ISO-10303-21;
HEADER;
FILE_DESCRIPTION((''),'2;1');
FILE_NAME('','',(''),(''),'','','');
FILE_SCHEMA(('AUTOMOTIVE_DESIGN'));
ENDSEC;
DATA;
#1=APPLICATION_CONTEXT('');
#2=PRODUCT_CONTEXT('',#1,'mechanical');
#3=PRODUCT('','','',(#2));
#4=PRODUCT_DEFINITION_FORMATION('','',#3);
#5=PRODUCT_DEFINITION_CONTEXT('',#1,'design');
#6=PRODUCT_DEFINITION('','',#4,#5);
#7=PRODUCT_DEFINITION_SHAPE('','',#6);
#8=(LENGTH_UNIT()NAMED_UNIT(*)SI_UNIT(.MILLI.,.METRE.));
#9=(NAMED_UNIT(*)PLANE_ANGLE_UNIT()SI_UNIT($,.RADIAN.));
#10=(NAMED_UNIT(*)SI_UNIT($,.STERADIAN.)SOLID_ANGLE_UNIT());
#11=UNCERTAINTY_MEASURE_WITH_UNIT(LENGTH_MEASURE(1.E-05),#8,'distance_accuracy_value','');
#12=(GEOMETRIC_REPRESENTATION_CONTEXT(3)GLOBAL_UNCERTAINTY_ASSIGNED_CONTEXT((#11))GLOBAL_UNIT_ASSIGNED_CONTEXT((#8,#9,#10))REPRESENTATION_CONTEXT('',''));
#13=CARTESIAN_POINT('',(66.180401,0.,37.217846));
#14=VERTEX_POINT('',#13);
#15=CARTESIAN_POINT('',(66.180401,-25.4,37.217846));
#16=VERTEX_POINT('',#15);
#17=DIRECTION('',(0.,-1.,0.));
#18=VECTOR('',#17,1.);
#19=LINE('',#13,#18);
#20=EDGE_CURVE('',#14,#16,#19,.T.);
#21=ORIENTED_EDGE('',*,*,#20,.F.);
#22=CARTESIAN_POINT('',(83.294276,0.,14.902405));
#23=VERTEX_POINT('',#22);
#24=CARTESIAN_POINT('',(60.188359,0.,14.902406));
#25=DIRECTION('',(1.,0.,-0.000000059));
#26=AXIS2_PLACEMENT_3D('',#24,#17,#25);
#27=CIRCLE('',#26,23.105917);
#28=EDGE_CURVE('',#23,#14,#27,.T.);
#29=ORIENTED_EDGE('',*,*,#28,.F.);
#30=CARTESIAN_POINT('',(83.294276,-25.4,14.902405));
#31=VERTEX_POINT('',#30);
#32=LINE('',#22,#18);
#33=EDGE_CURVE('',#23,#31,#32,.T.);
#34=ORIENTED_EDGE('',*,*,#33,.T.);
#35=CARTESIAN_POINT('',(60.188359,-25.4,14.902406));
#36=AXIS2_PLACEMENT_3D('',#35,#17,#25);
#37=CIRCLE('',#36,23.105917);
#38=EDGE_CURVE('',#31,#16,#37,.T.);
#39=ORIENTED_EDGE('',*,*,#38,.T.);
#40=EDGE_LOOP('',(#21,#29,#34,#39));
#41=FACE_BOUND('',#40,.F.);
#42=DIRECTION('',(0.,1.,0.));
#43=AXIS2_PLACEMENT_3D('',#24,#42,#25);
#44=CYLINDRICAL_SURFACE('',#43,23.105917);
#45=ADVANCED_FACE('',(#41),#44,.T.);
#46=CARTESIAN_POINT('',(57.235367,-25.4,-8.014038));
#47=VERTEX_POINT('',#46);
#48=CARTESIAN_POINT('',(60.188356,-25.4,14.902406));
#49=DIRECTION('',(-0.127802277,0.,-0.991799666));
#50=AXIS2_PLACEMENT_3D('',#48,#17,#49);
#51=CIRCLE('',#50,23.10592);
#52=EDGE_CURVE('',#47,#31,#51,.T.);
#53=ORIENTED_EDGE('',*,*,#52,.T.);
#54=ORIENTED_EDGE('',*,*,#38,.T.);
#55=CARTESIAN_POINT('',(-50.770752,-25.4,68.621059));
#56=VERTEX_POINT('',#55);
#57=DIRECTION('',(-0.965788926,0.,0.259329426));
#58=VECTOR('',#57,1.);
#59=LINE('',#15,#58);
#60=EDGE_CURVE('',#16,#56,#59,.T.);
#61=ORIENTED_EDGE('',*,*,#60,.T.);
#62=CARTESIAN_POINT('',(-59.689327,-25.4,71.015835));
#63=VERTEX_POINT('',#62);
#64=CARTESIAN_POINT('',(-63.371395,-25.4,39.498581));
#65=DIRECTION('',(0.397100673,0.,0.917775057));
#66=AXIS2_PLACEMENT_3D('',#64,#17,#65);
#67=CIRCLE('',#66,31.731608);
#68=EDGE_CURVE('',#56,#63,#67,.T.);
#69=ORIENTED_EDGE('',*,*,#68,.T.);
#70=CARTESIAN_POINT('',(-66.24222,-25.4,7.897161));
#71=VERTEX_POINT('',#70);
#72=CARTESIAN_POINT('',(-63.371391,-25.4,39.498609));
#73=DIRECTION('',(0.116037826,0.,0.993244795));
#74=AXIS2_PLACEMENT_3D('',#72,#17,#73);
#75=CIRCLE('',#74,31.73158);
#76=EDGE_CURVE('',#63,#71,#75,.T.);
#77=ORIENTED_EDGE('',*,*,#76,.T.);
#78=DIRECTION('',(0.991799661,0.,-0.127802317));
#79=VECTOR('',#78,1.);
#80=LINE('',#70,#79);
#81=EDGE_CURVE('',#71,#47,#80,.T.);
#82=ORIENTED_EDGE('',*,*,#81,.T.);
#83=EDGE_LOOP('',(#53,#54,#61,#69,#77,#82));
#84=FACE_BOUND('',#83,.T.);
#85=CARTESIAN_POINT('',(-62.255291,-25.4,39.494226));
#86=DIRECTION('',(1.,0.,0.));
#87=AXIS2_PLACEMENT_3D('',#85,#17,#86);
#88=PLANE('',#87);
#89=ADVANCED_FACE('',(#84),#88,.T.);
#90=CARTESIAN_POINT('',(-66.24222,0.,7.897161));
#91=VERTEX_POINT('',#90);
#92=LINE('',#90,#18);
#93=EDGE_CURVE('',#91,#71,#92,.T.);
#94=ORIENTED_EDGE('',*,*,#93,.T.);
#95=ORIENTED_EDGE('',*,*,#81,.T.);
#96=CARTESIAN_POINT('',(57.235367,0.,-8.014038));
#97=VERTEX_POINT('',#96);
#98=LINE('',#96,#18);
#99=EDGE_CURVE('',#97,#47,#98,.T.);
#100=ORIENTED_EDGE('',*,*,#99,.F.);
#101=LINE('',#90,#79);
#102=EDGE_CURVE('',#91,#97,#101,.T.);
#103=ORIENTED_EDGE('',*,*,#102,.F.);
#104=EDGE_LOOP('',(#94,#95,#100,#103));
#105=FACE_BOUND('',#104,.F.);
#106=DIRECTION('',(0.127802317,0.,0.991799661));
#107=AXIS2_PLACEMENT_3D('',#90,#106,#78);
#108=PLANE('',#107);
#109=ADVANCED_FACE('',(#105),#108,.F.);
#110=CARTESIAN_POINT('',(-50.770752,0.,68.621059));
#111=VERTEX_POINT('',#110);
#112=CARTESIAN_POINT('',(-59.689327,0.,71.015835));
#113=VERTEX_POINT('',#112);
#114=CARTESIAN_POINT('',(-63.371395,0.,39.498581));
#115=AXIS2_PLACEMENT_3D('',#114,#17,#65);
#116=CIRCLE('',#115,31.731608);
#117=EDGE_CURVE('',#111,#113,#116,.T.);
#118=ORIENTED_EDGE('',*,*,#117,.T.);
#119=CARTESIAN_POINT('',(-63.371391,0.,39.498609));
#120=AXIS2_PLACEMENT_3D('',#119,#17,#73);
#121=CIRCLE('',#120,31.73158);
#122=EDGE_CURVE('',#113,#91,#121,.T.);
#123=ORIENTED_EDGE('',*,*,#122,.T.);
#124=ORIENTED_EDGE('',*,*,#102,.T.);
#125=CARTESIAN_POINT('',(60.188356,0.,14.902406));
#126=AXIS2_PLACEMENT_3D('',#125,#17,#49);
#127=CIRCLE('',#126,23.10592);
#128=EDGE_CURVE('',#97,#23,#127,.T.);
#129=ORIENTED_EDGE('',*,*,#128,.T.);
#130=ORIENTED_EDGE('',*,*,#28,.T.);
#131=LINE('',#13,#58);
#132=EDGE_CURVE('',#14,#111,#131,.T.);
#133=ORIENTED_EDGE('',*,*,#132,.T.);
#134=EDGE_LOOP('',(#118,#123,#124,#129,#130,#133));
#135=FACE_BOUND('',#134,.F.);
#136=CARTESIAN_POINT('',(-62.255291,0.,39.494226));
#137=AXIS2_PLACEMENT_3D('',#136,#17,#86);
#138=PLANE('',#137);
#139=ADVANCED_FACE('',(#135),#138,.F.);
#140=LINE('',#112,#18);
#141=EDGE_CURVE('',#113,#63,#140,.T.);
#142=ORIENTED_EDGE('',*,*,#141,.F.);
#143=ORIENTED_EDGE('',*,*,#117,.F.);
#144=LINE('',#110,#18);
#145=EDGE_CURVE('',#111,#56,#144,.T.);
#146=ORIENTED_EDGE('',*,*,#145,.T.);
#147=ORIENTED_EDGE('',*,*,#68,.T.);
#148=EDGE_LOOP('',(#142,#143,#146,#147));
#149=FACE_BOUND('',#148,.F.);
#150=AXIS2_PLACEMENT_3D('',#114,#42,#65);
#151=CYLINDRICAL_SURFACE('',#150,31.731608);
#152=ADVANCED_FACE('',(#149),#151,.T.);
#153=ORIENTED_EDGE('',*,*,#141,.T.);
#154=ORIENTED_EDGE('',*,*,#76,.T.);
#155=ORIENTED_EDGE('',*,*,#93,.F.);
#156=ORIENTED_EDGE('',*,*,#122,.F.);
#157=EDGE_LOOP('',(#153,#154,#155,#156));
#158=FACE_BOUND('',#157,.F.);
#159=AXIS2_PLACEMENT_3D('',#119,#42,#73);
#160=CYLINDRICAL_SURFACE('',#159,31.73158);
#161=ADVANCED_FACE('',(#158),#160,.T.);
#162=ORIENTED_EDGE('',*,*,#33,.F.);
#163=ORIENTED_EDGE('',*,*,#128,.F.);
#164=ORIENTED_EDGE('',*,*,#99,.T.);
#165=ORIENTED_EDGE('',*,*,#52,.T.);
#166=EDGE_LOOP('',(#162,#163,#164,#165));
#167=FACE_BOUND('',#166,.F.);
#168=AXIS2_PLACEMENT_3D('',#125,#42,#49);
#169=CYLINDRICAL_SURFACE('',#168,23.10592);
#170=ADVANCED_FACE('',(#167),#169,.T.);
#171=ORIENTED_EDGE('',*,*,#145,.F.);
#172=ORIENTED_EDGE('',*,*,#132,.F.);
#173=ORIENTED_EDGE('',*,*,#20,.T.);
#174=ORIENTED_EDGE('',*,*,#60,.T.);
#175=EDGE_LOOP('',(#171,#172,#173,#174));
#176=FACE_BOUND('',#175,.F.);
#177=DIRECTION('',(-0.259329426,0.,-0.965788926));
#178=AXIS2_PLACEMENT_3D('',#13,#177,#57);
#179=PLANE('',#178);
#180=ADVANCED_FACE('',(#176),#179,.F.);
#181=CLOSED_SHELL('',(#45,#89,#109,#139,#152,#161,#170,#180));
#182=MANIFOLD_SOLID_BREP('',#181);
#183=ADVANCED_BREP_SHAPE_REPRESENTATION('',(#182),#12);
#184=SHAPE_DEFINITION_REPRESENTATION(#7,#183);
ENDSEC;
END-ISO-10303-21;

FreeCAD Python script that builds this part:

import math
import FreeCAD as App
import Part
import Sketcher
from FreeCAD import Vector
Q = App.Units.Quantity

doc = App.newDocument("Part")
body = doc.addObject("PartDesign::Body", "Body")

# Sketch on XZ plane
sketch1 = doc.addObject("Sketcher::SketchObject", "Sketch")
body.addObject(sketch1)
sketch1.AttachmentSupport = (doc.XZ_Plane, [""])
sketch1.MapMode = "FlatFace"
sketch1.addGeometry([
    Part.ArcOfCircle(Part.Circle(Vector(-63.371391, 39.498609, 0), Vector(0, 0, 1), 31.73158), math.radians(83.336511), math.radians(264.80922)),  # 0
    Part.LineSegment(Vector(-66.24222, 7.897161, 0), Vector(57.235367, -8.014038, 0)),  # 1
    Part.ArcOfCircle(Part.Circle(Vector(60.188356, 14.902406, 0), Vector(0, 0, 1), 23.10592), math.radians(-97.342613), math.radians(-0.000001)),  # 2
    Part.ArcOfCircle(Part.Circle(Vector(60.188359, 14.902406, 0), Vector(0, 0, 1), 23.105917), math.radians(-0.000003), math.radians(74.969729)),  # 3
    Part.LineSegment(Vector(66.180401, 37.217846, 0), Vector(-50.770752, 68.621059, 0)),  # 4
    Part.ArcOfCircle(Part.Circle(Vector(-63.371395, 39.498581, 0), Vector(0, 0, 1), 31.731608), math.radians(66.602948), math.radians(83.336509)),  # 5
], False)
sketch1.addConstraint([
    Sketcher.Constraint("Coincident", 0, 2, 1, 1),
    Sketcher.Constraint("Coincident", 1, 2, 2, 1),
    Sketcher.Constraint("Coincident", 2, 2, 3, 1),
    Sketcher.Constraint("Coincident", 3, 2, 4, 1),
    Sketcher.Constraint("Coincident", 4, 2, 5, 1),
    Sketcher.Constraint("Coincident", 5, 2, 0, 1),
    Sketcher.Constraint("Coincident", 3, 3, 2, 3),
    Sketcher.Constraint("Radius", 0, Q("31.73158 mm")),
    Sketcher.Constraint("Radius", 2, Q("23.10592 mm")),
    Sketcher.Constraint("Radius", 5, Q("31.731608 mm")),
    Sketcher.Constraint("DistanceX", -1, 1, 3, 2, Q("66.180401 mm")),
    Sketcher.Constraint("DistanceY", 1, 2, 0, 2, Q("15.911199 mm")),
    Sketcher.Constraint("DistanceY", 0, 2, 4, 2, Q("60.723898 mm")),
    Sketcher.Constraint("DistanceX", 0, 3, -1, 1, Q("63.371391 mm")),
    Sketcher.Constraint("DistanceY", -1, 1, 0, 3, Q("39.498609 mm")),
    Sketcher.Constraint("DistanceX", -1, 1, 3, 3, Q("60.188359 mm")),
    Sketcher.Constraint("DistanceY", -1, 1, 5, 3, Q("39.498581 mm")),
    Sketcher.Constraint("DistanceX", 0, 2, -1, 1, Q("66.24222 mm")),
    Sketcher.Constraint("DistanceX", 1, 2, 2, 3, Q("2.952989 mm")),
    Sketcher.Constraint("DistanceY", 2, 2, 3, 2, Q("22.315441 mm")),
    Sketcher.Constraint("DistanceX", 5, 2, 3, 2, Q("125.869728 mm")),
])
pad1 = doc.addObject("PartDesign::Pad", "Pad")
body.addObject(pad1)
pad1.Profile = sketch1
pad1.Length = Q("1 in")

# Sketch on XZ plane
sketch2 = doc.addObject("Sketcher::SketchObject", "Sketch001")
body.addObject(sketch2)
sketch2.AttachmentSupport = (doc.XZ_Plane, [""])
sketch2.MapMode = "FlatFace"
sketch2.addGeometry([
    Part.ArcOfCircle(Part.Circle(Vector(-63.371391, 39.498609, 0), Vector(0, 0, 1), 31.73158), math.radians(83.336511), math.radians(264.80922)),  # 0
    Part.LineSegment(Vector(-66.24222, 7.897161, 0), Vector(57.235367, -8.014038, 0)),  # 1
    Part.ArcOfCircle(Part.Circle(Vector(60.188356, 14.902406, 0), Vector(0, 0, 1), 23.10592), math.radians(-97.342613), math.radians(-0.000001)),  # 2
    Part.ArcOfCircle(Part.Circle(Vector(60.188359, 14.902406, 0), Vector(0, 0, 1), 23.105917), math.radians(-0.000003), math.radians(74.969729)),  # 3
    Part.LineSegment(Vector(66.180401, 37.217846, 0), Vector(-50.770752, 68.621059, 0)),  # 4
    Part.ArcOfCircle(Part.Circle(Vector(-63.371395, 39.498581, 0), Vector(0, 0, 1), 31.731608), math.radians(66.602948), math.radians(83.336509)),  # 5
], False)
sketch2.addConstraint([
    Sketcher.Constraint("Coincident", 0, 2, 1, 1),
    Sketcher.Constraint("Coincident", 1, 2, 2, 1),
    Sketcher.Constraint("Coincident", 2, 2, 3, 1),
    Sketcher.Constraint("Coincident", 3, 2, 4, 1),
    Sketcher.Constraint("Coincident", 4, 2, 5, 1),
    Sketcher.Constraint("Coincident", 5, 2, 0, 1),
    Sketcher.Constraint("Coincident", 3, 3, 2, 3),
    Sketcher.Constraint("Radius", 0, Q("31.73158 mm")),
    Sketcher.Constraint("Radius", 2, Q("23.10592 mm")),
    Sketcher.Constraint("Radius", 5, Q("31.731608 mm")),
    Sketcher.Constraint("DistanceX", -1, 1, 3, 2, Q("66.180401 mm")),
    Sketcher.Constraint("DistanceY", 1, 2, 0, 2, Q("15.911199 mm")),
    Sketcher.Constraint("DistanceY", 0, 2, 4, 2, Q("60.723898 mm")),
    Sketcher.Constraint("DistanceX", 0, 3, -1, 1, Q("63.371391 mm")),
    Sketcher.Constraint("DistanceY", -1, 1, 0, 3, Q("39.498609 mm")),
    Sketcher.Constraint("DistanceX", -1, 1, 3, 3, Q("60.188359 mm")),
    Sketcher.Constraint("DistanceY", -1, 1, 5, 3, Q("39.498581 mm")),
    Sketcher.Constraint("DistanceX", 0, 2, -1, 1, Q("66.24222 mm")),
    Sketcher.Constraint("DistanceX", 1, 2, 2, 3, Q("2.952989 mm")),
    Sketcher.Constraint("DistanceY", 2, 2, 3, 2, Q("22.315441 mm")),
    Sketcher.Constraint("DistanceX", 5, 2, 3, 2, Q("125.869728 mm")),
])
pad2 = doc.addObject("PartDesign::Pad", "Pad001")
body.addObject(pad2)
pad2.Profile = sketch2
pad2.Length = Q("1 in")

doc.recompute()
